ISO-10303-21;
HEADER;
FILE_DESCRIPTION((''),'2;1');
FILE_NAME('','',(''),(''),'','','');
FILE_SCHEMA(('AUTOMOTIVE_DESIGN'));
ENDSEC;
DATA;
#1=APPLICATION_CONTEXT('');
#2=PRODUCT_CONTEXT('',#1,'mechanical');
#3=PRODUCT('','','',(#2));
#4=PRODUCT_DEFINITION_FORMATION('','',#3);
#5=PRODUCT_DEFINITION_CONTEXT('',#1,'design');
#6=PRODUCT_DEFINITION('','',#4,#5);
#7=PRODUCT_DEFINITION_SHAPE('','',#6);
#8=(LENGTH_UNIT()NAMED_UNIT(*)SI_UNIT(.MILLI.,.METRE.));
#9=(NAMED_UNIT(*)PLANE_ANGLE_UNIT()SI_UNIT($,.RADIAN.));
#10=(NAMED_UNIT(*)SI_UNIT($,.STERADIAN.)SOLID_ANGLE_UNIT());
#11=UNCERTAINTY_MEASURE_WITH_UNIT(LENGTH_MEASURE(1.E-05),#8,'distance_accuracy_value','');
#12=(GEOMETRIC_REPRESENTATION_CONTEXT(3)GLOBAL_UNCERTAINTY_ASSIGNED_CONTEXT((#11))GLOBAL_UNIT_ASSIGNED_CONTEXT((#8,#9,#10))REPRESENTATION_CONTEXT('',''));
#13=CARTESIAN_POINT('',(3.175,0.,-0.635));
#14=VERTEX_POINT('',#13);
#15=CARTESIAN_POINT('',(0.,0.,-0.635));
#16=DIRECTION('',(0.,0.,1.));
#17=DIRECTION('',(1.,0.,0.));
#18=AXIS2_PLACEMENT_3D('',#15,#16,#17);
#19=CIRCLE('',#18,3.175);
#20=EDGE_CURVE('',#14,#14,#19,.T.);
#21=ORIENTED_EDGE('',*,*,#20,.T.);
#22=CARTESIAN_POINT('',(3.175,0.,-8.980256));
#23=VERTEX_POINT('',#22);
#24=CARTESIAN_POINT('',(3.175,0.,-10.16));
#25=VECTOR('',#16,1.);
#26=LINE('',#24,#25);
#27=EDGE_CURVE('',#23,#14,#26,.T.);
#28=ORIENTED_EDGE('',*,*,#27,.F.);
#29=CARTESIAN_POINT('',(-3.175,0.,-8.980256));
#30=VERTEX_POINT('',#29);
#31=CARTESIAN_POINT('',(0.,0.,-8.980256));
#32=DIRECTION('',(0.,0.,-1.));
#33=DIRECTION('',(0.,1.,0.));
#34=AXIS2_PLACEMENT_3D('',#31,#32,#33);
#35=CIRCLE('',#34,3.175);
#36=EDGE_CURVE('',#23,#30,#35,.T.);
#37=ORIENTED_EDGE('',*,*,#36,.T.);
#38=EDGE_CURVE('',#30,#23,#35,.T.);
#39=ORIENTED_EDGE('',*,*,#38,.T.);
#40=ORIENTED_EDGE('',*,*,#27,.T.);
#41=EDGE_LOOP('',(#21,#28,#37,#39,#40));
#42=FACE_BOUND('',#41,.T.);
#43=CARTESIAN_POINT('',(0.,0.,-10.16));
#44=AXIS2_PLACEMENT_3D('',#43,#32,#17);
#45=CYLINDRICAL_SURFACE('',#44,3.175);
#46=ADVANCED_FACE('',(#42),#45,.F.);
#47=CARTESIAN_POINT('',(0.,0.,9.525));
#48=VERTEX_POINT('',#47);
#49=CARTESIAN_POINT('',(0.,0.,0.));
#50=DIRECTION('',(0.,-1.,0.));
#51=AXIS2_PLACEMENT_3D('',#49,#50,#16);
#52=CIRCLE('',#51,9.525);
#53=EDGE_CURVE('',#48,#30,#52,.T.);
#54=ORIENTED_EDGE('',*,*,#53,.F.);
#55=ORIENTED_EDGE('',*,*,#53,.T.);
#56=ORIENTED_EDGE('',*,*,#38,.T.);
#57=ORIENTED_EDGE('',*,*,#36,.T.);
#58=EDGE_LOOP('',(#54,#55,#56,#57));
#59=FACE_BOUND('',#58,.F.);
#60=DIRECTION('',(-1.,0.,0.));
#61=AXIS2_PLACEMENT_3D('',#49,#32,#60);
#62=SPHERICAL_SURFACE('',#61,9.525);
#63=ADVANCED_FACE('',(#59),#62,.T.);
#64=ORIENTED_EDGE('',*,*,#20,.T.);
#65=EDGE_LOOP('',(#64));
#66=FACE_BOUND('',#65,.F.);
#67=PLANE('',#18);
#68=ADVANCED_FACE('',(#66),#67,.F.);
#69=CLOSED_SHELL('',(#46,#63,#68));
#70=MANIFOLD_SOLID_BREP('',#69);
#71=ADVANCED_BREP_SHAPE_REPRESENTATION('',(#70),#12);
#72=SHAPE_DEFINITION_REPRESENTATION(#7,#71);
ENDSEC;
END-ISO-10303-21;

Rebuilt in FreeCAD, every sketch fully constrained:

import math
import FreeCAD as App
import Part
import Sketcher

V = App.Vector
Q = App.Units.Quantity

doc = App.newDocument("Part")
body = doc.addObject("PartDesign::Body", "Body")

sketch1 = body.newObject("Sketcher::SketchObject", "Sketch")
sketch1.AttachmentSupport = (doc.getObject("XZ_Plane"), [""])
sketch1.MapMode = "FlatFace"
sketch1.addGeometry(Part.LineSegment(V(0, -9.525, 0), V(0, 9.525, 0)), False)
sketch1.addGeometry(Part.ArcOfCircle(Part.Circle(V(0, 0, 0), V(0, 0, 1), 9.525), math.radians(90), math.radians(270)), False)
sketch1.addConstraint(Sketcher.Constraint("Coincident", 0, 1, 1, 2))
sketch1.addConstraint(Sketcher.Constraint("Coincident", 1, 1, 0, 2))
sketch1.addConstraint(Sketcher.Constraint("Vertical", 0))
sketch1.addConstraint(Sketcher.Constraint("Coincident", 1, 3, -1, 1))
sketch1.addConstraint(Sketcher.Constraint("PointOnObject", 0, 1, -2))
sketch1.addConstraint(Sketcher.Constraint("Radius", 1, Q("0.375 in")))
revolution = body.newObject("PartDesign::Revolution", "Revolution")
revolution.Profile = sketch1
revolution.ReferenceAxis = (sketch1, ["V_Axis"])
revolution.Angle = 360

sketch2 = body.newObject("Sketcher::SketchObject", "Sketch001")
sketch2.AttachmentSupport = (doc.getObject("XY_Plane"), [""])
sketch2.MapMode = "FlatFace"
sketch2.AttachmentOffset = App.Placement(V(0, 0, -0.4 * 25.4), App.Rotation())
sketch2.addGeometry(Part.Circle(V(0, 0, 0), V(0, 0, 1), 3.175), False)
sketch2.addConstraint(Sketcher.Constraint("Coincident", 0, 3, -1, 1))
sketch2.addConstraint(Sketcher.Constraint("Diameter", 0, Q("0.25 in")))
pocket1 = body.newObject("PartDesign::Pocket", "Pocket")
pocket1.Profile = sketch2
pocket1.Length = Q("0.375 in")
pocket1.Reversed = True

doc.recompute()
